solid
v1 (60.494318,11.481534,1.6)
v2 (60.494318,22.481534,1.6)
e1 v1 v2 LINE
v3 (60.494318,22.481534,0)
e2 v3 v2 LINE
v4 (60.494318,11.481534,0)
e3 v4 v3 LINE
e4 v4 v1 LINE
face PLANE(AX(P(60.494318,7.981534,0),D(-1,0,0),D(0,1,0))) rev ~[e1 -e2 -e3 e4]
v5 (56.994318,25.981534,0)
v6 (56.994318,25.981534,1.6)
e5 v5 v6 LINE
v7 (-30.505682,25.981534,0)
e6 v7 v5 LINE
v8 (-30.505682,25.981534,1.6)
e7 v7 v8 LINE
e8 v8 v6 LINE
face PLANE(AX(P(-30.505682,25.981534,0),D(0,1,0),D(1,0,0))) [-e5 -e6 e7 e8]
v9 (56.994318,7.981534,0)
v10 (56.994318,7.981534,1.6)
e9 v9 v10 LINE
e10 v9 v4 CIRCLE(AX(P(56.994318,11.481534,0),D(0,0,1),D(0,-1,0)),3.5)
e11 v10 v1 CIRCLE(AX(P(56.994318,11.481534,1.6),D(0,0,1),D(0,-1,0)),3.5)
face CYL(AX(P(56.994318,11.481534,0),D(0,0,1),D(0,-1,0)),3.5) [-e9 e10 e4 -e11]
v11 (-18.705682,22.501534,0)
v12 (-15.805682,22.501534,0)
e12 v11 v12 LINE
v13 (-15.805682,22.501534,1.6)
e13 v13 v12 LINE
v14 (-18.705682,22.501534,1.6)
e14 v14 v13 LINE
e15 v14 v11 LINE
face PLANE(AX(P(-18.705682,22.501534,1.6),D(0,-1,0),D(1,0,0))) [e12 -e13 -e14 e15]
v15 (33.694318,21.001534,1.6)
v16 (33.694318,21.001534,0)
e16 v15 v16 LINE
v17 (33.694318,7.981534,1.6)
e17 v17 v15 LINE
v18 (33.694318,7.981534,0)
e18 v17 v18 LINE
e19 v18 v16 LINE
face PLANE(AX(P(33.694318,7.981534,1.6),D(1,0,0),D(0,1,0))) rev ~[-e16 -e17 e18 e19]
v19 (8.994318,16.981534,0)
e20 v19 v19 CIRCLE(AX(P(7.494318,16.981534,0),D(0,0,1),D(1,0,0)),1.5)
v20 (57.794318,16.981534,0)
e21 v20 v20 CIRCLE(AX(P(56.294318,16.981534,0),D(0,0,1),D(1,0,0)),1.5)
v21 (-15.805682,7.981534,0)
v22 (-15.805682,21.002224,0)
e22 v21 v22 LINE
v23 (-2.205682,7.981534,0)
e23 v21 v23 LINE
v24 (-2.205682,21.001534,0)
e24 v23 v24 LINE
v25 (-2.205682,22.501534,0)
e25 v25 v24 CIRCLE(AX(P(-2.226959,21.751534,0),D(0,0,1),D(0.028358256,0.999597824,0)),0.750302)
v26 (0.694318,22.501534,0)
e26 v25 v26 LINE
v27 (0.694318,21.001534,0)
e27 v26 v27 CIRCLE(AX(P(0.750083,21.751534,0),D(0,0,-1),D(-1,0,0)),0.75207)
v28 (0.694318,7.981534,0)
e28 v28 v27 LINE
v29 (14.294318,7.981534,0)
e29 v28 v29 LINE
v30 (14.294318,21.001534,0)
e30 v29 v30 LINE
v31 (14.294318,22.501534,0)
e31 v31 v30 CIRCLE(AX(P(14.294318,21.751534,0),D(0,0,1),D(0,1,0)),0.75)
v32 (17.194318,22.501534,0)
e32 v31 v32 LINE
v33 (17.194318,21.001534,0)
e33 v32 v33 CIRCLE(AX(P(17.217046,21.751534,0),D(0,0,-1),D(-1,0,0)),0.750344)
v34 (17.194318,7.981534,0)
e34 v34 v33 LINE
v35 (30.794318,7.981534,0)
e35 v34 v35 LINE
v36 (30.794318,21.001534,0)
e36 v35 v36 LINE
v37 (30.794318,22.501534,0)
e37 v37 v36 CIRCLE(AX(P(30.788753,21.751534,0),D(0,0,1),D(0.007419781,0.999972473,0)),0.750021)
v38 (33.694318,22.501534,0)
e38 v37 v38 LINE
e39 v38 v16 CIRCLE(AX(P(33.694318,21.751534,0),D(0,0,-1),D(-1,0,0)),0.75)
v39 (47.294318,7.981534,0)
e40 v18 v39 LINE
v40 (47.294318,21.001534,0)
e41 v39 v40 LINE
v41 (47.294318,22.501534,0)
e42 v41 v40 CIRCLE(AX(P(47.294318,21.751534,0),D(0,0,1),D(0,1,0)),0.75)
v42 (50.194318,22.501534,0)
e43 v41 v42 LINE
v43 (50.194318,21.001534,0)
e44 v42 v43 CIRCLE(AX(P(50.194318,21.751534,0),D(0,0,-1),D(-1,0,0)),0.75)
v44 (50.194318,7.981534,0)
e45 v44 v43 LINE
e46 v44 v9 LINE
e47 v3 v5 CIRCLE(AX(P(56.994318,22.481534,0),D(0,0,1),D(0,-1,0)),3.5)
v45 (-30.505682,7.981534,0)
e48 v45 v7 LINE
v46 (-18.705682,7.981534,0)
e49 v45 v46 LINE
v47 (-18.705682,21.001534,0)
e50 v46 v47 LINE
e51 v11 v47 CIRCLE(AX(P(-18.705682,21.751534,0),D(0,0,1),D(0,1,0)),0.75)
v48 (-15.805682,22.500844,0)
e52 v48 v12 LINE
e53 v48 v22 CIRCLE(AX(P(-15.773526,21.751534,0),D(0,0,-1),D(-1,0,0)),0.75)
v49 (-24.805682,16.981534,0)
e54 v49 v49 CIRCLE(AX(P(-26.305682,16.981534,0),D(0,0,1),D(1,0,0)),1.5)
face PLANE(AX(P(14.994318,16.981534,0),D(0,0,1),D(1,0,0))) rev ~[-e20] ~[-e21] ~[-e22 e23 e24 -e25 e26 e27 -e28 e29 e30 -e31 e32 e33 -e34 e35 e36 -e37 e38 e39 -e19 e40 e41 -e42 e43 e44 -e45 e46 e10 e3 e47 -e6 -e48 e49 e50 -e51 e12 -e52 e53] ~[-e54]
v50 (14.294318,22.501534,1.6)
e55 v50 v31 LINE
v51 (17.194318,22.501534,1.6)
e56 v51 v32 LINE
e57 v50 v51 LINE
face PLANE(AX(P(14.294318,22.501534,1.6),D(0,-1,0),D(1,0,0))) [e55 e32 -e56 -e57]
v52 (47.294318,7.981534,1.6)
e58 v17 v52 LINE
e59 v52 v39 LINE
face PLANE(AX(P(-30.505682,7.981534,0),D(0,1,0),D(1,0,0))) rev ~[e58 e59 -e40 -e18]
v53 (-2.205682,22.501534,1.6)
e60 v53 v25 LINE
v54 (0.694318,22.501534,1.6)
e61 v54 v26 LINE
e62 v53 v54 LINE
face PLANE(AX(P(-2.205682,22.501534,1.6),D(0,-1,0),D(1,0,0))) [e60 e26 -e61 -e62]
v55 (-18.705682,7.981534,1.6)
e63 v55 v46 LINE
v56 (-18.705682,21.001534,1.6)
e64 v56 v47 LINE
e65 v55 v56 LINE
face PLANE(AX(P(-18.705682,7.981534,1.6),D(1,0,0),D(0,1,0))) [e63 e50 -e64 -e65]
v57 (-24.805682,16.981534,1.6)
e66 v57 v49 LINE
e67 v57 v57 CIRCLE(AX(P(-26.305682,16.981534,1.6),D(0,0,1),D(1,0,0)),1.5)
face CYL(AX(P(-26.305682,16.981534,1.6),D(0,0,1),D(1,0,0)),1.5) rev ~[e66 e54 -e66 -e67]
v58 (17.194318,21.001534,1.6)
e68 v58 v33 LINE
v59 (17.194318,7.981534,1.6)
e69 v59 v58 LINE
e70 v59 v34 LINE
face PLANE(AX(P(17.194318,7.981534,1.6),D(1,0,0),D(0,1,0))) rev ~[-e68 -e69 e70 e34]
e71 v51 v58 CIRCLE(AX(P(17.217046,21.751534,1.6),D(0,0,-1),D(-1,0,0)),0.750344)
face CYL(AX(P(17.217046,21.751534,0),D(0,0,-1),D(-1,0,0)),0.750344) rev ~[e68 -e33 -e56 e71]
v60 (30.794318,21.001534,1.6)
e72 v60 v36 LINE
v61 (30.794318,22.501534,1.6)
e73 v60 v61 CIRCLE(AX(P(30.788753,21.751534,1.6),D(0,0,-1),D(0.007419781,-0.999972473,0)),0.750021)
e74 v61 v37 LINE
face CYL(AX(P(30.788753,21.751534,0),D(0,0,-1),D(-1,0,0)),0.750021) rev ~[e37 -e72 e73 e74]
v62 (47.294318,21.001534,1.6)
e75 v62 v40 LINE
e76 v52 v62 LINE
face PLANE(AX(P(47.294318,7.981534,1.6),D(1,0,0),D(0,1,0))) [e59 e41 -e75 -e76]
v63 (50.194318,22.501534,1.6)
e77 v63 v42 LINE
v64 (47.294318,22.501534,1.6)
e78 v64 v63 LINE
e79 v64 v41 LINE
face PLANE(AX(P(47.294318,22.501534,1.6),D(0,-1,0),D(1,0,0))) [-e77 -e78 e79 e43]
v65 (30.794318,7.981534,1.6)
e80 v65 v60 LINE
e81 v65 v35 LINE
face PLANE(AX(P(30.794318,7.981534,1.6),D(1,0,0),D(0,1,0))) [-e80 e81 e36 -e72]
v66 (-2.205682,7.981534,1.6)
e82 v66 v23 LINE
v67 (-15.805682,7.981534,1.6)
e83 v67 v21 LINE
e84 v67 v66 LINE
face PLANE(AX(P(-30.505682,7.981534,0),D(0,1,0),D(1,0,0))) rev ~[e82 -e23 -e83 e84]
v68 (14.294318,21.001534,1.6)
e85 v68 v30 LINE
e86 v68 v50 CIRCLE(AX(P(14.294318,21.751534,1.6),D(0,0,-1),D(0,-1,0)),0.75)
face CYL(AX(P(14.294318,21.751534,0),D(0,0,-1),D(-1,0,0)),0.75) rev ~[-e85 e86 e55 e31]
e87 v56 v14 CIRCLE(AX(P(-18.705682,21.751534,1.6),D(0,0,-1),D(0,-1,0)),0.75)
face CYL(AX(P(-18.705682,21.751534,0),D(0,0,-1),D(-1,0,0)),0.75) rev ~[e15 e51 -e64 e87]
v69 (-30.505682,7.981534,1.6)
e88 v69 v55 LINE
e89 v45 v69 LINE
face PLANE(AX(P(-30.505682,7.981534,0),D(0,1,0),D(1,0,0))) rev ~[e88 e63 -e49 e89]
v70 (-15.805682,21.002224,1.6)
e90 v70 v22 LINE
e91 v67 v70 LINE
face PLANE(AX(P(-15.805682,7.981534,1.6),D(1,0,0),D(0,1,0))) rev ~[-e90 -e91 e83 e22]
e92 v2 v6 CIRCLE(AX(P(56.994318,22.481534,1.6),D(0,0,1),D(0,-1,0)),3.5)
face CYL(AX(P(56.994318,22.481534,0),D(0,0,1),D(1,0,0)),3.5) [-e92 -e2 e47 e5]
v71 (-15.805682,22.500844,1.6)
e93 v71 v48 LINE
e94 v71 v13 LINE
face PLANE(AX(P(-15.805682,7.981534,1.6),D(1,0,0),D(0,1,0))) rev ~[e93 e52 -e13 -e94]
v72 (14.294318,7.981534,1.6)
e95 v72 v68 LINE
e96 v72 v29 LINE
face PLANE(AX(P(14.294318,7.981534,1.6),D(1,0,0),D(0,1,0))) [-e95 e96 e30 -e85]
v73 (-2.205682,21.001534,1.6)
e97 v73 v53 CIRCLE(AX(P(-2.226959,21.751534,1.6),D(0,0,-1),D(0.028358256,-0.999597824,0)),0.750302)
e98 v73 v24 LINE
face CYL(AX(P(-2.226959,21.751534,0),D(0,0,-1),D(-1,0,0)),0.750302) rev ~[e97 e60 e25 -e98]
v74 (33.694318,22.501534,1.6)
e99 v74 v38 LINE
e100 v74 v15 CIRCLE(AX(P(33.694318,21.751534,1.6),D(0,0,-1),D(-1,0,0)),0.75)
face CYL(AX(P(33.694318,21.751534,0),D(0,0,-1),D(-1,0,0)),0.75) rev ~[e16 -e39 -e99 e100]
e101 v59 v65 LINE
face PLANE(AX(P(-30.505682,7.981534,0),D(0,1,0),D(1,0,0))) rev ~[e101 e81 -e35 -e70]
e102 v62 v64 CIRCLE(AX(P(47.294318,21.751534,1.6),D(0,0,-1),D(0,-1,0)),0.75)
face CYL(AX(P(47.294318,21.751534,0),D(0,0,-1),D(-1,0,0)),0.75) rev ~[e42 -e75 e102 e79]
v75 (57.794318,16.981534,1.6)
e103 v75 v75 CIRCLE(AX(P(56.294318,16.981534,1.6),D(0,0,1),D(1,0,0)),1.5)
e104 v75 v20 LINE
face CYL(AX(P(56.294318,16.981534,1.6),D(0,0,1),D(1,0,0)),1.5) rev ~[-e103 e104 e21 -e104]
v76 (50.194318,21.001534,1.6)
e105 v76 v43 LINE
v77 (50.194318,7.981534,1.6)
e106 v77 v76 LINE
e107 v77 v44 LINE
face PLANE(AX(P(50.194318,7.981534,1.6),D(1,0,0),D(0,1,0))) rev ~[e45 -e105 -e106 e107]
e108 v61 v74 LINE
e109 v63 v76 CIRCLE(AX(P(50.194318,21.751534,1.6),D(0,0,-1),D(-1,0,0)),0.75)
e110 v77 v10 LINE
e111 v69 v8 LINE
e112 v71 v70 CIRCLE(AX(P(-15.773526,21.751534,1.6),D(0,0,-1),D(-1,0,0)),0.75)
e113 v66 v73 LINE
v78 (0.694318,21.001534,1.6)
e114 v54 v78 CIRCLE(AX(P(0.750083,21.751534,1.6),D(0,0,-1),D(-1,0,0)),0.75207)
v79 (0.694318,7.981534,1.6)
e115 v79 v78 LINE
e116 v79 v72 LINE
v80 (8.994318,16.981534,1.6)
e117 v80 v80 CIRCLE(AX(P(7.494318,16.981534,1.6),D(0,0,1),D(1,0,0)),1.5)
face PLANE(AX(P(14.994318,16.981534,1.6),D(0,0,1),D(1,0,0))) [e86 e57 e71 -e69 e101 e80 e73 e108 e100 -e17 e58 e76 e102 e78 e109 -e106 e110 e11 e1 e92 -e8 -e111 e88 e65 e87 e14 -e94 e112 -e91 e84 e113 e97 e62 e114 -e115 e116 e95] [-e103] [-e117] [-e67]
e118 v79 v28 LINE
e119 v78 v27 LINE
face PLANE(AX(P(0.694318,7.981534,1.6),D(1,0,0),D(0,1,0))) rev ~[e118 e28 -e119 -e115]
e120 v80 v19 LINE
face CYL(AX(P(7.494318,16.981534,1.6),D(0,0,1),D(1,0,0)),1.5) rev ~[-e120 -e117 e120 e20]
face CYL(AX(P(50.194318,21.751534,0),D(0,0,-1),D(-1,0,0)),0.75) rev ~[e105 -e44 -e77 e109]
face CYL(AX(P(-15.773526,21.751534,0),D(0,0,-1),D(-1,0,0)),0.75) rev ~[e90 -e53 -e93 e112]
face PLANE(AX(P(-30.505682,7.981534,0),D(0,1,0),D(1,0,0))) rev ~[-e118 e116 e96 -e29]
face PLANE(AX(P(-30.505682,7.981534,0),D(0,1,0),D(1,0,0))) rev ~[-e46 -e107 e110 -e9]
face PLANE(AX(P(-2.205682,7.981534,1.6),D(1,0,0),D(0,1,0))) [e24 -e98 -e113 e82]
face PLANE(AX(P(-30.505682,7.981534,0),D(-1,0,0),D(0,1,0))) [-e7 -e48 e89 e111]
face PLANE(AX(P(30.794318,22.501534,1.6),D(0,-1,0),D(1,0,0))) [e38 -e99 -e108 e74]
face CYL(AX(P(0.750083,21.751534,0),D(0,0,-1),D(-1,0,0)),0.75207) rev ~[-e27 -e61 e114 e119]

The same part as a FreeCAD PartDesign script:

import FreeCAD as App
import Part
import Sketcher


def edges_at(feature, points):
    """Names of the edges that pass closest to the given points."""
    edges = feature.Shape.Edges
    near = lambda p: min(range(len(edges)), key=lambda i: edges[i].distToShape(Part.Vertex(*p))[0])
    return sorted({f"Edge{near(p) + 1}" for p in points})


def add_polygon(sketch, points):
    """Adds a closed chain of lines whose ends are joined by coincident constraints."""
    first, n = sketch.GeometryCount, len(points)
    for a, b in zip(points, points[1:] + points[:1]):
        sketch.addGeometry(Part.LineSegment(App.Vector(*a, 0), App.Vector(*b, 0)), False)
    for i in range(n):
        sketch.addConstraint(Sketcher.Constraint("Coincident", first + i, 2, first + (i + 1) % n, 1))

doc = App.newDocument("Part")
body = doc.addObject("PartDesign::Body", "Body")

# Sketch on XY plane
sketch1 = body.newObject("Sketcher::SketchObject", "Sketch")
sketch1.AttachmentSupport = (doc.getObject("XY_Plane"), [""])
sketch1.MapMode = "FlatFace"
add_polygon(sketch1, [(-31, 26), (-31, 8), (60, 8), (60, 26)])  # lines 0-3
sketch1.addConstraint(Sketcher.Constraint("Vertical", 0))
sketch1.addConstraint(Sketcher.Constraint("Horizontal", 1))
sketch1.addConstraint(Sketcher.Constraint("Vertical", 2))
sketch1.addConstraint(Sketcher.Constraint("Horizontal", 3))
sketch1.addConstraint(Sketcher.Constraint("DistanceX", 1, 1, 1, 2, 91.0))
sketch1.addConstraint(Sketcher.Constraint("DistanceY", 0, 2, 0, 1, 18.0))
sketch1.addConstraint(Sketcher.Constraint("DistanceX", 0, 2, -1, 1, 30.505682))
sketch1.addConstraint(Sketcher.Constraint("DistanceY", -1, 1, 0, 2, 7.981534))
pad1 = body.newObject("PartDesign::Pad", "Pad")
pad1.Profile = sketch1
pad1.Length = 1.6
doc.recompute()

fillet = body.newObject("PartDesign::Fillet", "Fillet")
fillet.Base = (pad1, edges_at(pad1, [(60.494, 25.982, 0.8), (60.494, 7.982, 0.8)]))
fillet.Radius = 3.5

# Sketch on XY plane
sketch2 = body.newObject("Sketcher::SketchObject", "Sketch001")
sketch2.AttachmentSupport = (doc.getObject("XY_Plane"), [""])
sketch2.MapMode = "FlatFace"
sketch2.AttachmentOffset = App.Placement(App.Vector(0, 0, 1.6), App.Rotation())
add_polygon(sketch2, [(-18.7, 22.5), (-18.7, 8), (-15.8, 8), (-15.8, 22.5)])  # lines 0-3
add_polygon(sketch2, [(-2.2, 22.5), (-2.2, 8), (0.7, 8), (0.7, 22.5)])  # lines 4-7
add_polygon(sketch2, [(14.3, 22.5), (14.3, 8), (17.2, 8), (17.2, 22.5)])  # lines 8-11
add_polygon(sketch2, [(30.8, 22.5), (30.8, 8), (33.7, 8), (33.7, 22.5)])  # lines 12-15
add_polygon(sketch2, [(47.3, 22.5), (47.3, 8), (50.2, 8), (50.2, 22.5)])  # lines 16-19
sketch2.addConstraint(Sketcher.Constraint("Vertical", 0))
sketch2.addConstraint(Sketcher.Constraint("Horizontal", 1))
sketch2.addConstraint(Sketcher.Constraint("Vertical", 2))
sketch2.addConstraint(Sketcher.Constraint("Horizontal", 3))
sketch2.addConstraint(Sketcher.Constraint("Vertical", 4))
sketch2.addConstraint(Sketcher.Constraint("Horizontal", 5))
sketch2.addConstraint(Sketcher.Constraint("Vertical", 6))
sketch2.addConstraint(Sketcher.Constraint("Horizontal", 7))
sketch2.addConstraint(Sketcher.Constraint("Vertical", 8))
sketch2.addConstraint(Sketcher.Constraint("Horizontal", 9))
sketch2.addConstraint(Sketcher.Constraint("Vertical", 10))
sketch2.addConstraint(Sketcher.Constraint("Horizontal", 11))
sketch2.addConstraint(Sketcher.Constraint("Vertical", 12))
sketch2.addConstraint(Sketcher.Constraint("Horizontal", 13))
sketch2.addConstraint(Sketcher.Constraint("Vertical", 14))
sketch2.addConstraint(Sketcher.Constraint("Horizontal", 15))
sketch2.addConstraint(Sketcher.Constraint("Vertical", 16))
sketch2.addConstraint(Sketcher.Constraint("Horizontal", 17))
sketch2.addConstraint(Sketcher.Constraint("Vertical", 18))
sketch2.addConstraint(Sketcher.Constraint("Horizontal", 19))
sketch2.addConstraint(Sketcher.Constraint("Horizontal", 1, 2, 4, 2))
sketch2.addConstraint(Sketcher.Constraint("Horizontal", 3, 2, 6, 2))
sketch2.addConstraint(Sketcher.Constraint("Horizontal", 5, 2, 8, 2))
sketch2.addConstraint(Sketcher.Constraint("Horizontal", 7, 2, 10, 2))
sketch2.addConstraint(Sketcher.Constraint("Horizontal", 9, 2, 12, 2))
sketch2.addConstraint(Sketcher.Constraint("Horizontal", 11, 2, 14, 2))
sketch2.addConstraint(Sketcher.Constraint("Horizontal", 13, 2, 16, 2))
sketch2.addConstraint(Sketcher.Constraint("Horizontal", 15, 2, 18, 2))
sketch2.addConstraint(Sketcher.Constraint("Equal", 3, 5))
sketch2.addConstraint(Sketcher.Constraint("Equal", 7, 9))
sketch2.addConstraint(Sketcher.Constraint("Equal", 11, 13))
sketch2.addConstraint(Sketcher.Constraint("Equal", 15, 17))
sketch2.addConstraint(Sketcher.Constraint("DistanceX", 1, 1, 1, 2, 2.9))
sketch2.addConstraint(Sketcher.Constraint("DistanceY", 0, 2, 0, 1, 14.52))
sketch2.addConstraint(Sketcher.Constraint("DistanceX", 1, 2, 4, 2, 13.6))
sketch2.addConstraint(Sketcher.Constraint("DistanceX", 5, 2, 8, 2, 13.6))
sketch2.addConstraint(Sketcher.Constraint("DistanceX", 9, 2, 12, 2, 13.6))
sketch2.addConstraint(Sketcher.Constraint("DistanceX", 13, 2, 16, 2, 13.6))
sketch2.addConstraint(Sketcher.Constraint("DistanceX", 0, 2, -1, 1, 18.705682))
sketch2.addConstraint(Sketcher.Constraint("DistanceY", -1, 1, 0, 2, 7.981534))
pocket1 = body.newObject("PartDesign::Pocket", "Pocket")
pocket1.Profile = sketch2
pocket1.Length = 1.6

# Sketch on XY plane
sketch3 = body.newObject("Sketcher::SketchObject", "Sketch002")
sketch3.AttachmentSupport = (doc.getObject("XY_Plane"), [""])
sketch3.MapMode = "FlatFace"
sketch3.AttachmentOffset = App.Placement(App.Vector(0, 0, 1.6), App.Rotation())
sketch3.addGeometry(Part.Circle(App.Vector(-26.3, 17, 0), App.Vector(0, 0, 1), 1.5), False)
sketch3.addGeometry(Part.Circle(App.Vector(56.3, 17, 0), App.Vector(0, 0, 1), 1.5), False)
sketch3.addConstraint(Sketcher.Constraint("Equal", 0, 1))
sketch3.addConstraint(Sketcher.Constraint("Horizontal", 0, 3, 1, 3))
sketch3.addConstraint(Sketcher.Constraint("Diameter", 0, 3.0))
sketch3.addConstraint(Sketcher.Constraint("DistanceX", 0, 3, 1, 3, 82.6))
sketch3.addConstraint(Sketcher.Constraint("DistanceX", 0, 3, -1, 1, 26.305682))
sketch3.addConstraint(Sketcher.Constraint("DistanceY", -1, 1, 0, 3, 16.981534))
pocket2 = body.newObject("PartDesign::Pocket", "Pocket001")
pocket2.Profile = sketch3
pocket2.Length = 1.6

# Sketch on XY plane
sketch4 = body.newObject("Sketcher::SketchObject", "Sketch003")
sketch4.AttachmentSupport = (doc.getObject("XY_Plane"), [""])
sketch4.MapMode = "FlatFace"
sketch4.AttachmentOffset = App.Placement(App.Vector(0, 0, 1.6), App.Rotation())
sketch4.addGeometry(Part.Circle(App.Vector(7.5, 17, 0), App.Vector(0, 0, 1), 1.5), False)
sketch4.addConstraint(Sketcher.Constraint("Diameter", 0, 3.0))
sketch4.addConstraint(Sketcher.Constraint("DistanceX", -1, 1, 0, 3, 7.494318))
sketch4.addConstraint(Sketcher.Constraint("DistanceY", -1, 1, 0, 3, 16.981534))
pocket3 = body.newObject("PartDesign::Pocket", "Pocket002")
pocket3.Profile = sketch4
pocket3.Length = 1.6

# Sketch on XY plane
sketch5 = body.newObject("Sketcher::SketchObject", "Sketch004")
sketch5.AttachmentSupport = (doc.getObject("XY_Plane"), [""])
sketch5.MapMode = "FlatFace"
sketch5.addGeometry(Part.Circle(App.Vector(-18.7, 21.8, 0), App.Vector(0, 0, 1), 0.8), False)
sketch5.addGeometry(Part.Circle(App.Vector(-15.8, 21.8, 0), App.Vector(0, 0, 1), 0.8), False)
sketch5.addGeometry(Part.Circle(App.Vector(-2.2, 21.8, 0), App.Vector(0, 0, 1), 0.8), False)
sketch5.addGeometry(Part.Circle(App.Vector(0.8, 21.8, 0), App.Vector(0, 0, 1), 0.8), False)
sketch5.addGeometry(Part.Circle(App.Vector(14.3, 21.8, 0), App.Vector(0, 0, 1), 0.8), False)
sketch5.addGeometry(Part.Circle(App.Vector(17.2, 21.8, 0), App.Vector(0, 0, 1), 0.8), False)
sketch5.addGeometry(Part.Circle(App.Vector(30.8, 21.8, 0), App.Vector(0, 0, 1), 0.8), False)
sketch5.addGeometry(Part.Circle(App.Vector(33.7, 21.8, 0), App.Vector(0, 0, 1), 0.8), False)
sketch5.addGeometry(Part.Circle(App.Vector(47.3, 21.8, 0), App.Vector(0, 0, 1), 0.8), False)
sketch5.addGeometry(Part.Circle(App.Vector(50.2, 21.8, 0), App.Vector(0, 0, 1), 0.8), False)
sketch5.addConstraint(Sketcher.Constraint("Equal", 0, 1))
sketch5.addConstraint(Sketcher.Constraint("Equal", 1, 4))
sketch5.addConstraint(Sketcher.Constraint("Equal", 4, 7))
sketch5.addConstraint(Sketcher.Constraint("Equal", 7, 8))
sketch5.addConstraint(Sketcher.Constraint("Equal", 8, 9))
sketch5.addConstraint(Sketcher.Constraint("Horizontal", 0, 3, 1, 3))
sketch5.addConstraint(Sketcher.Constraint("Horizontal", 1, 3, 2, 3))
sketch5.addConstraint(Sketcher.Constraint("Horizontal", 2, 3, 3, 3))
sketch5.addConstraint(Sketcher.Constraint("Horizontal", 3, 3, 4, 3))
sketch5.addConstraint(Sketcher.Constraint("Horizontal", 4, 3, 5, 3))
sketch5.addConstraint(Sketcher.Constraint("Horizontal", 5, 3, 6, 3))
sketch5.addConstraint(Sketcher.Constraint("Horizontal", 6, 3, 7, 3))
sketch5.addConstraint(Sketcher.Constraint("Horizontal", 7, 3, 8, 3))
sketch5.addConstraint(Sketcher.Constraint("Horizontal", 8, 3, 9, 3))
sketch5.addConstraint(Sketcher.Constraint("Diameter", 0, 1.5))
sketch5.addConstraint(Sketcher.Constraint("DistanceX", 0, 3, 4, 3, 33.0))
sketch5.addConstraint(Sketcher.Constraint("DistanceX", 4, 3, 8, 3, 33.0))
sketch5.addConstraint(Sketcher.Constraint("DistanceX", 4, 3, 7, 3, 19.4))
sketch5.addConstraint(Sketcher.Constraint("DistanceX", 8, 3, 9, 3, 2.9))
sketch5.addConstraint(Sketcher.Constraint("Diameter", 3, 1.504141))
sketch5.addConstraint(Sketcher.Constraint("Diameter", 5, 1.500689))
sketch5.addConstraint(Sketcher.Constraint("Diameter", 6, 1.500041))
sketch5.addConstraint(Sketcher.Constraint("Diameter", 2, 1.500604))
sketch5.addConstraint(Sketcher.Constraint("DistanceX", 0, 3, -1, 1, 18.705682))
sketch5.addConstraint(Sketcher.Constraint("DistanceX", 2, 3, -1, 1, 2.226959))
sketch5.addConstraint(Sketcher.Constraint("DistanceX", 2, 3, 3, 3, 2.977042))
sketch5.addConstraint(Sketcher.Constraint("DistanceX", 1, 3, 3, 3, 16.523609))
sketch5.addConstraint(Sketcher.Constraint("DistanceX", 4, 3, 5, 3, 2.922728))
sketch5.addConstraint(Sketcher.Constraint("DistanceX", 3, 3, 6, 3, 30.03867))
sketch5.addConstraint(Sketcher.Constraint("DistanceY", -1, 1, 0, 3, 21.751534))
pocket4 = body.newObject("PartDesign::Pocket", "Pocket003")
pocket4.Profile = sketch5
pocket4.Length = 1.6
pocket4.Reversed = True

doc.recompute()
